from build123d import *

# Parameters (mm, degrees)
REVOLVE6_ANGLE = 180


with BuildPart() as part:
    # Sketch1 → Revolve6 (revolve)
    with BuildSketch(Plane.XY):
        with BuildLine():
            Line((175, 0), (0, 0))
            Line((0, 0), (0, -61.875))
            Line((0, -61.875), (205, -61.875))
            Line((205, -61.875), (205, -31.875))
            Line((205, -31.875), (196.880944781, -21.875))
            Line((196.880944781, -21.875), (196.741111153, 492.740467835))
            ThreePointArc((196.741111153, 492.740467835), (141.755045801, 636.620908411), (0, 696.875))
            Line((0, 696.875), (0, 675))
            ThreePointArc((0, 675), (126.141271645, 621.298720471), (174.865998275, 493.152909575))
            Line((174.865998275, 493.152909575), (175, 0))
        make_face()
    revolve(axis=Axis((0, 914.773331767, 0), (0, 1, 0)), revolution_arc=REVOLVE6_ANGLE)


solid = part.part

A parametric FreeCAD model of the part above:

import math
import FreeCAD as App
import Part
import Sketcher

V = App.Vector

doc = App.newDocument("Part")
params = doc.addObject("Spreadsheet::Sheet", "Params")
for row, (alias, value) in enumerate([
    ("sketch1_radius", "175 mm"),
    ("sketch1_width", "175 mm"),
    ("sketch1_width2", "205 mm"),
    ("sketch1_height", "30 mm"),
    ("revolution_angle", "180 deg"),
], start=1):
    params.set(f"A{row}", alias)
    params.set(f"B{row}", "=" + value)
    params.setAlias(f"B{row}", alias)

body = doc.addObject("PartDesign::Body", "Body")

# Sketch on XY plane
sketch1 = body.newObject("Sketcher::SketchObject", "Sketch")
sketch1.AttachmentSupport = (doc.getObject("XY_Plane"), [""])
sketch1.MapMode = "FlatFace"
sketch1.addGeometry([
    Part.LineSegment(V(175, 0, 0), V(0, 0, 0)),  # 0
    Part.LineSegment(V(0, 0, 0), V(0, -61.875, 0)),  # 1
    Part.LineSegment(V(0, -61.875, 0), V(205, -61.875, 0)),  # 2
    Part.LineSegment(V(205, -61.875, 0), V(205, -31.875, 0)),  # 3
    Part.LineSegment(V(205, -31.875, 0), V(196.880945, -21.875, 0)),  # 4
    Part.LineSegment(V(196.880945, -21.875, 0), V(196.741111, 492.740468, 0)),  # 5
    Part.ArcOfCircle(Part.Circle(V(0, 500, 0), V(0, 0, 1), 196.875), math.radians(-2.113193), math.radians(90)),  # 6
    Part.LineSegment(V(0, 696.875, 0), V(0, 675, 0)),  # 7
    Part.ArcOfCircle(Part.Circle(V(0, 500, 0), V(0, 0, 1), 175), math.radians(-2.24234), math.radians(90)),  # 8
    Part.LineSegment(V(174.865998, 493.15291, 0), V(175, 0, 0)),  # 9
], False)
sketch1.addConstraint([
    Sketcher.Constraint("Coincident", 0, 2, 1, 1),
    Sketcher.Constraint("Coincident", 1, 2, 2, 1),
    Sketcher.Constraint("Coincident", 2, 2, 3, 1),
    Sketcher.Constraint("Coincident", 3, 2, 4, 1),
    Sketcher.Constraint("Coincident", 4, 2, 5, 1),
    Sketcher.Constraint("Coincident", 5, 2, 6, 1),
    Sketcher.Constraint("Coincident", 6, 2, 7, 1),
    Sketcher.Constraint("Coincident", 7, 2, 8, 2),
    Sketcher.Constraint("Coincident", 8, 1, 9, 1),
    Sketcher.Constraint("Coincident", 9, 2, 0, 1),
    Sketcher.Constraint("Horizontal", 0),
    Sketcher.Constraint("Vertical", 1),
    Sketcher.Constraint("Horizontal", 2),
    Sketcher.Constraint("Vertical", 3),
    Sketcher.Constraint("Vertical", 7),
    Sketcher.Constraint("Coincident", 0, 2, -1, 1),
    Sketcher.Constraint("Coincident", 8, 3, 6, 3),
    Sketcher.Constraint("PointOnObject", 6, 3, -2),
    Sketcher.Constraint("PointOnObject", 6, 2, -2),
    Sketcher.Constraint("Parallel", 5, 9),
    Sketcher.Constraint("Radius", 8, 175.0),
    Sketcher.Constraint("DistanceX", 0, 2, 0, 1, 175.0),
    Sketcher.Constraint("DistanceX", 2, 1, 2, 2, 205.0),
    Sketcher.Constraint("DistanceY", 3, 1, 3, 2, 30.0),
    Sketcher.Constraint("DistanceY", -1, 1, 6, 3, 500.0),
    Sketcher.Constraint("Radius", 6, 196.875),
    Sketcher.Constraint("DistanceY", 3, 2, 4, 2, 10.0),
    Sketcher.Constraint("DistanceY", 1, 2, 1, 1, 61.875),
    Sketcher.Constraint("DistanceX", -1, 1, 8, 1, 174.865998),
    Sketcher.Constraint("DistanceX", -1, 1, 5, 2, 196.741111),
])
sketch1.setExpression("Constraints[20]", "Params.sketch1_radius")
sketch1.setExpression("Constraints[21]", "Params.sketch1_width")
sketch1.setExpression("Constraints[22]", "Params.sketch1_width2")
sketch1.setExpression("Constraints[23]", "Params.sketch1_height")
revolution = body.newObject("PartDesign::Revolution", "Revolution")
revolution.Profile = sketch1
revolution.ReferenceAxis = (sketch1, ["V_Axis"])
revolution.setExpression("Angle", "Params.revolution_angle")

doc.recompute()
